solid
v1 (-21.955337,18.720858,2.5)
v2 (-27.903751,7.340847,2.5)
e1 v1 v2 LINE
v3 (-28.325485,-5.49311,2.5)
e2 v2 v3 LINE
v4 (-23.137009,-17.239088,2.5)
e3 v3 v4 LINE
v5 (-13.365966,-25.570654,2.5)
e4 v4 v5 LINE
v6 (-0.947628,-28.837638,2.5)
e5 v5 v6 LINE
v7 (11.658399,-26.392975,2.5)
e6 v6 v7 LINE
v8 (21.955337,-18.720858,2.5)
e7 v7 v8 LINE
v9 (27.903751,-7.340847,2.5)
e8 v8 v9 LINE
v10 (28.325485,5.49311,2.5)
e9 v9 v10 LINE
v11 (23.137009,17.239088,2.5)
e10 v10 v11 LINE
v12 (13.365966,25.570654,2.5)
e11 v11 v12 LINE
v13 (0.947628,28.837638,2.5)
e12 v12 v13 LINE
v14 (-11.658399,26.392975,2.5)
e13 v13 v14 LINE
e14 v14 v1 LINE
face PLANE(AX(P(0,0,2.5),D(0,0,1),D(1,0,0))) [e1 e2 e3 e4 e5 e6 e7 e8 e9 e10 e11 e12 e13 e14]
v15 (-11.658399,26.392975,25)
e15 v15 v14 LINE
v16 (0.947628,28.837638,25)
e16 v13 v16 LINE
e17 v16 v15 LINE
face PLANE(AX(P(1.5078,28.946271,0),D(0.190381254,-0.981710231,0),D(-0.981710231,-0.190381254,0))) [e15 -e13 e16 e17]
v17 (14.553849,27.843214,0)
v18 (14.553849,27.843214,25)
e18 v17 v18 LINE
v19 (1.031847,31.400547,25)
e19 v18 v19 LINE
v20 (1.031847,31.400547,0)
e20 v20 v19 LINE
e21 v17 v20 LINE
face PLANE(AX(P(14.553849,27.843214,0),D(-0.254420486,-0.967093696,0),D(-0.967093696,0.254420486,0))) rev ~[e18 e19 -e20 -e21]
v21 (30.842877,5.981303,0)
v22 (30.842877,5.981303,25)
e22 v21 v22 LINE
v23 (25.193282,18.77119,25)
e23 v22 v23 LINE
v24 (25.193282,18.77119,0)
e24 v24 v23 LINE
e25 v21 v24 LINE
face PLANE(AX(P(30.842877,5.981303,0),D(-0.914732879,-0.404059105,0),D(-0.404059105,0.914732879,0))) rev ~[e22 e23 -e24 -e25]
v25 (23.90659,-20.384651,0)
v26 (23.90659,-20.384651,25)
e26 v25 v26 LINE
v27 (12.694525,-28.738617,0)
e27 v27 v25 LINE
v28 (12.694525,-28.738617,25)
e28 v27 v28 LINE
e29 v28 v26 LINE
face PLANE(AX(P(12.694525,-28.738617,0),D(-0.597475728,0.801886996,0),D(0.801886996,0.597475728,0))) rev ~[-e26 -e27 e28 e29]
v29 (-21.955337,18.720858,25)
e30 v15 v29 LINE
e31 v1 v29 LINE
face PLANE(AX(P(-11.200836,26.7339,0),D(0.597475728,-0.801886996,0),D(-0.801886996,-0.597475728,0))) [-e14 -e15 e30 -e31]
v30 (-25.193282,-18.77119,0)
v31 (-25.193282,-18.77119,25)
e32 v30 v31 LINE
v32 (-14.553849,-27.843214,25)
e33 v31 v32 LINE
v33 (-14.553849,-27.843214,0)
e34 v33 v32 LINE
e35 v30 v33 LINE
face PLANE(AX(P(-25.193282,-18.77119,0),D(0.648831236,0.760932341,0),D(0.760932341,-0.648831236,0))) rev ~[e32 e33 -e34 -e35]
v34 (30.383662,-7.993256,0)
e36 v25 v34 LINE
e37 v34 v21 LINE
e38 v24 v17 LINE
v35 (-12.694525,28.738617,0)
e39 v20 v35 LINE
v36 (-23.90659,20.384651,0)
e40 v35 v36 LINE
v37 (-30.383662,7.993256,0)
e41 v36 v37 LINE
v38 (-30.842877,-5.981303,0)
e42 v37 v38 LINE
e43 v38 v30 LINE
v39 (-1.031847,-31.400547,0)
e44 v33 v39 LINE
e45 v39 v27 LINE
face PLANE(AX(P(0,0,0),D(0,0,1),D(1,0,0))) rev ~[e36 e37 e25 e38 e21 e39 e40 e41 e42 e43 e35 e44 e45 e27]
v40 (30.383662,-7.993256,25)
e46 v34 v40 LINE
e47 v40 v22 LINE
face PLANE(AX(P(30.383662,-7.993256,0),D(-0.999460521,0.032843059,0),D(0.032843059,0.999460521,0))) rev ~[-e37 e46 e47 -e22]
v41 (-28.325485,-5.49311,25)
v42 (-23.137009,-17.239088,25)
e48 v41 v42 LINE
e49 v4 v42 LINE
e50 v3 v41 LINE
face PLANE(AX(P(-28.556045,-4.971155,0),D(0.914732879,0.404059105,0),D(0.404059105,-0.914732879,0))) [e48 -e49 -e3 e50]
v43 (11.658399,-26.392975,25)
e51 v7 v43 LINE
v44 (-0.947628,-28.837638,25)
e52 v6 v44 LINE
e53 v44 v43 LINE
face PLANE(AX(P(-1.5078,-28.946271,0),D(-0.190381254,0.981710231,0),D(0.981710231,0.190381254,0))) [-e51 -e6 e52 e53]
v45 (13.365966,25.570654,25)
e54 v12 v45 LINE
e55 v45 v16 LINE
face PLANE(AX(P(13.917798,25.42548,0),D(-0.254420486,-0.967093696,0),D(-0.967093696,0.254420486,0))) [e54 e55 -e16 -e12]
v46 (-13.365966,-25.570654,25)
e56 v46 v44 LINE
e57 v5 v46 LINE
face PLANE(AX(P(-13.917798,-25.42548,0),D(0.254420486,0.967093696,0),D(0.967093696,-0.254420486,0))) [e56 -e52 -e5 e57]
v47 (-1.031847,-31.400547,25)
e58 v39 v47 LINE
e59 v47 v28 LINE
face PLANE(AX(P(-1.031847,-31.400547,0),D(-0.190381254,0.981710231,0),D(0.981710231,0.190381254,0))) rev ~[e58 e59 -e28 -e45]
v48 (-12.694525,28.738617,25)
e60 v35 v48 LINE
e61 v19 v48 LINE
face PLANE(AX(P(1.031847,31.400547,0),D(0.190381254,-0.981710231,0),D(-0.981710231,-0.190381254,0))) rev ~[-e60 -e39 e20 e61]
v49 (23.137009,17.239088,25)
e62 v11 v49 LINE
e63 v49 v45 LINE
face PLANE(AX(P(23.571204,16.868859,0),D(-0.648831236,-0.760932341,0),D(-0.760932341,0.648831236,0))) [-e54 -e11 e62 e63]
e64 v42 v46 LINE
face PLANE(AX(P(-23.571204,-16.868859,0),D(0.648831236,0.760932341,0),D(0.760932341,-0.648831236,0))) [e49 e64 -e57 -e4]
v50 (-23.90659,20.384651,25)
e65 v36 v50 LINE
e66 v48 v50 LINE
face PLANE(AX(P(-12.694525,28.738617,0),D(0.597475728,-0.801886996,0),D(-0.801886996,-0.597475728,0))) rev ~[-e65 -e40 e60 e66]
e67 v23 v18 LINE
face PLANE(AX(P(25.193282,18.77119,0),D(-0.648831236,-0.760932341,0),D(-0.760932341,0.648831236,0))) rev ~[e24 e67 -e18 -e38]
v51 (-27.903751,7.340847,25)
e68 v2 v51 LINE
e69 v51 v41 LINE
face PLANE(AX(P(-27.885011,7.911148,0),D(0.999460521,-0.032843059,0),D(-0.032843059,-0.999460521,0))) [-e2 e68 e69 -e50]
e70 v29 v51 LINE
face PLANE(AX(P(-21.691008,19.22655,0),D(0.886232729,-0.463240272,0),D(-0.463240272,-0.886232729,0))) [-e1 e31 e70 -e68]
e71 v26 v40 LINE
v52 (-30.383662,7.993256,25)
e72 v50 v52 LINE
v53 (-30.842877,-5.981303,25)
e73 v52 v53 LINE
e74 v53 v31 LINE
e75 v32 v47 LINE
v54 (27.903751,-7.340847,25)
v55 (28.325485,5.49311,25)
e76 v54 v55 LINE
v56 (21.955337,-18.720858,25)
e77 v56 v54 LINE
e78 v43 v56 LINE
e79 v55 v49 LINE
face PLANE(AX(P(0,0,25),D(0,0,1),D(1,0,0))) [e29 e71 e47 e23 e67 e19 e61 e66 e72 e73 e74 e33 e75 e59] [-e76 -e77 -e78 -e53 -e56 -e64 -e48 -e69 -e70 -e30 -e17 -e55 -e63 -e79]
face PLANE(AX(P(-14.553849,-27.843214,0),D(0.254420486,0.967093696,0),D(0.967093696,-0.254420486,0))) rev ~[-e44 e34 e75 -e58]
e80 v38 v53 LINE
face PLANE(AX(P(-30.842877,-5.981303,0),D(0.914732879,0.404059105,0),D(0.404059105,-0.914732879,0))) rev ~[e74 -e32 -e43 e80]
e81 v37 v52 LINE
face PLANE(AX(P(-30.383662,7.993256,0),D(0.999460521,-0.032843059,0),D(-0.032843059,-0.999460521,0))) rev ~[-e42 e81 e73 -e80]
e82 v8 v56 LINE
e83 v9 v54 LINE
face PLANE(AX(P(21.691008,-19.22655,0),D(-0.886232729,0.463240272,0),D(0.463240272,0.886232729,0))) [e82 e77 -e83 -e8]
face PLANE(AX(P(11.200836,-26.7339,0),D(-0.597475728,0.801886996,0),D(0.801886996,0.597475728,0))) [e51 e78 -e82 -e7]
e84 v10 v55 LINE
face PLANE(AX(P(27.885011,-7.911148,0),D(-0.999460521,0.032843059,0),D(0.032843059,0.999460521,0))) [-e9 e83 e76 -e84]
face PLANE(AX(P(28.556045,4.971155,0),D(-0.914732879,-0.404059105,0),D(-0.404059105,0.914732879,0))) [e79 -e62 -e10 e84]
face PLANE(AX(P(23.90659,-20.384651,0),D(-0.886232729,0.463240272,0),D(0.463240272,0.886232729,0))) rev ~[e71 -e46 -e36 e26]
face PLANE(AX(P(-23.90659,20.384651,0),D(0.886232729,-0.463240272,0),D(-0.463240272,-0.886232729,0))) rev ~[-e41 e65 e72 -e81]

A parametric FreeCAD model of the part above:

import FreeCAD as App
import Part
import Sketcher

V = App.Vector


def faces_at(feature, points):
    """Names of the faces that lie closest to the given points."""
    faces = feature.Shape.Faces
    near = lambda p: min(range(len(faces)), key=lambda i: faces[i].distToShape(Part.Vertex(*p))[0])
    return sorted({f"Face{near(p) + 1}" for p in points})


def add_polygon(sketch, points):
    """Adds a closed chain of lines whose ends are joined by coincident constraints."""
    first, n = sketch.GeometryCount, len(points)
    for a, b in zip(points, points[1:] + points[:1]):
        sketch.addGeometry(Part.LineSegment(App.Vector(*a, 0), App.Vector(*b, 0)), False)
    for i in range(n):
        sketch.addConstraint(Sketcher.Constraint("Coincident", first + i, 2, first + (i + 1) % n, 1))

doc = App.newDocument("Part")
body = doc.addObject("PartDesign::Body", "Body")

# Sketch on XY plane
sketch1 = body.newObject("Sketcher::SketchObject", "Sketch")
sketch1.AttachmentSupport = (doc.getObject("XY_Plane"), [""])
sketch1.MapMode = "FlatFace"
add_polygon(sketch1, [(-12.694525, 28.738617), (-23.90659, 20.384651), (-30.383662, 7.993256), (-30.842877, -5.981303), (-25.193282, -18.77119), (-14.553849, -27.843214), (-1.031847, -31.400547), (12.694525, -28.738617), (23.90659, -20.384651), (30.383662, -7.993256), (30.842877, 5.981303), (25.193282, 18.77119), (14.553849, 27.843214), (1.031847, 31.400547)])  # lines 0-13
sketch1.addConstraint(Sketcher.Constraint("Symmetric", 0, 2, 7, 2, -1, 1))
sketch1.addConstraint(Sketcher.Constraint("Symmetric", 1, 2, 8, 2, -1, 1))
sketch1.addConstraint(Sketcher.Constraint("Symmetric", 2, 2, 9, 2, -1, 1))
sketch1.addConstraint(Sketcher.Constraint("Symmetric", 3, 2, 10, 2, -1, 1))
sketch1.addConstraint(Sketcher.Constraint("Symmetric", 4, 2, 11, 2, -1, 1))
sketch1.addConstraint(Sketcher.Constraint("Symmetric", 5, 2, 12, 2, -1, 1))
sketch1.addConstraint(Sketcher.Constraint("Symmetric", 6, 2, 13, 2, -1, 1))
sketch1.addConstraint(Sketcher.Constraint("Equal", 0, 1))
sketch1.addConstraint(Sketcher.Constraint("Equal", 1, 2))
sketch1.addConstraint(Sketcher.Constraint("Equal", 2, 3))
sketch1.addConstraint(Sketcher.Constraint("Equal", 3, 4))
sketch1.addConstraint(Sketcher.Constraint("Equal", 4, 5))
sketch1.addConstraint(Sketcher.Constraint("Equal", 5, 6))
sketch1.addConstraint(Sketcher.Constraint("Distance", 0, 13.982101))
sketch1.addConstraint(Sketcher.Constraint("DistanceX", 0, 2, -1, 1, 23.90659))
sketch1.addConstraint(Sketcher.Constraint("DistanceY", -1, 1, 0, 2, 20.384651))
sketch1.addConstraint(Sketcher.Constraint("DistanceX", 3, 2, -1, 1, 25.193282))
sketch1.addConstraint(Sketcher.Constraint("DistanceY", 3, 2, -1, 1, 18.77119))
sketch1.addConstraint(Sketcher.Constraint("DistanceX", 4, 2, -1, 1, 14.553849))
sketch1.addConstraint(Sketcher.Constraint("DistanceX", 1, 2, 0, 2, 6.477072))
sketch1.addConstraint(Sketcher.Constraint("DistanceX", 2, 2, 5, 2, 29.81103))
pad1 = body.newObject("PartDesign::Pad", "Pad")
pad1.Profile = sketch1
pad1.Length = 25
doc.recompute()

thickness = body.newObject("PartDesign::Thickness", "Thickness")
thickness.Base = (pad1, faces_at(pad1, [(0, 0, 25)]))
thickness.Value = 2.5
thickness.Reversed = True
thickness.Join = "Arc"

doc.recompute()
